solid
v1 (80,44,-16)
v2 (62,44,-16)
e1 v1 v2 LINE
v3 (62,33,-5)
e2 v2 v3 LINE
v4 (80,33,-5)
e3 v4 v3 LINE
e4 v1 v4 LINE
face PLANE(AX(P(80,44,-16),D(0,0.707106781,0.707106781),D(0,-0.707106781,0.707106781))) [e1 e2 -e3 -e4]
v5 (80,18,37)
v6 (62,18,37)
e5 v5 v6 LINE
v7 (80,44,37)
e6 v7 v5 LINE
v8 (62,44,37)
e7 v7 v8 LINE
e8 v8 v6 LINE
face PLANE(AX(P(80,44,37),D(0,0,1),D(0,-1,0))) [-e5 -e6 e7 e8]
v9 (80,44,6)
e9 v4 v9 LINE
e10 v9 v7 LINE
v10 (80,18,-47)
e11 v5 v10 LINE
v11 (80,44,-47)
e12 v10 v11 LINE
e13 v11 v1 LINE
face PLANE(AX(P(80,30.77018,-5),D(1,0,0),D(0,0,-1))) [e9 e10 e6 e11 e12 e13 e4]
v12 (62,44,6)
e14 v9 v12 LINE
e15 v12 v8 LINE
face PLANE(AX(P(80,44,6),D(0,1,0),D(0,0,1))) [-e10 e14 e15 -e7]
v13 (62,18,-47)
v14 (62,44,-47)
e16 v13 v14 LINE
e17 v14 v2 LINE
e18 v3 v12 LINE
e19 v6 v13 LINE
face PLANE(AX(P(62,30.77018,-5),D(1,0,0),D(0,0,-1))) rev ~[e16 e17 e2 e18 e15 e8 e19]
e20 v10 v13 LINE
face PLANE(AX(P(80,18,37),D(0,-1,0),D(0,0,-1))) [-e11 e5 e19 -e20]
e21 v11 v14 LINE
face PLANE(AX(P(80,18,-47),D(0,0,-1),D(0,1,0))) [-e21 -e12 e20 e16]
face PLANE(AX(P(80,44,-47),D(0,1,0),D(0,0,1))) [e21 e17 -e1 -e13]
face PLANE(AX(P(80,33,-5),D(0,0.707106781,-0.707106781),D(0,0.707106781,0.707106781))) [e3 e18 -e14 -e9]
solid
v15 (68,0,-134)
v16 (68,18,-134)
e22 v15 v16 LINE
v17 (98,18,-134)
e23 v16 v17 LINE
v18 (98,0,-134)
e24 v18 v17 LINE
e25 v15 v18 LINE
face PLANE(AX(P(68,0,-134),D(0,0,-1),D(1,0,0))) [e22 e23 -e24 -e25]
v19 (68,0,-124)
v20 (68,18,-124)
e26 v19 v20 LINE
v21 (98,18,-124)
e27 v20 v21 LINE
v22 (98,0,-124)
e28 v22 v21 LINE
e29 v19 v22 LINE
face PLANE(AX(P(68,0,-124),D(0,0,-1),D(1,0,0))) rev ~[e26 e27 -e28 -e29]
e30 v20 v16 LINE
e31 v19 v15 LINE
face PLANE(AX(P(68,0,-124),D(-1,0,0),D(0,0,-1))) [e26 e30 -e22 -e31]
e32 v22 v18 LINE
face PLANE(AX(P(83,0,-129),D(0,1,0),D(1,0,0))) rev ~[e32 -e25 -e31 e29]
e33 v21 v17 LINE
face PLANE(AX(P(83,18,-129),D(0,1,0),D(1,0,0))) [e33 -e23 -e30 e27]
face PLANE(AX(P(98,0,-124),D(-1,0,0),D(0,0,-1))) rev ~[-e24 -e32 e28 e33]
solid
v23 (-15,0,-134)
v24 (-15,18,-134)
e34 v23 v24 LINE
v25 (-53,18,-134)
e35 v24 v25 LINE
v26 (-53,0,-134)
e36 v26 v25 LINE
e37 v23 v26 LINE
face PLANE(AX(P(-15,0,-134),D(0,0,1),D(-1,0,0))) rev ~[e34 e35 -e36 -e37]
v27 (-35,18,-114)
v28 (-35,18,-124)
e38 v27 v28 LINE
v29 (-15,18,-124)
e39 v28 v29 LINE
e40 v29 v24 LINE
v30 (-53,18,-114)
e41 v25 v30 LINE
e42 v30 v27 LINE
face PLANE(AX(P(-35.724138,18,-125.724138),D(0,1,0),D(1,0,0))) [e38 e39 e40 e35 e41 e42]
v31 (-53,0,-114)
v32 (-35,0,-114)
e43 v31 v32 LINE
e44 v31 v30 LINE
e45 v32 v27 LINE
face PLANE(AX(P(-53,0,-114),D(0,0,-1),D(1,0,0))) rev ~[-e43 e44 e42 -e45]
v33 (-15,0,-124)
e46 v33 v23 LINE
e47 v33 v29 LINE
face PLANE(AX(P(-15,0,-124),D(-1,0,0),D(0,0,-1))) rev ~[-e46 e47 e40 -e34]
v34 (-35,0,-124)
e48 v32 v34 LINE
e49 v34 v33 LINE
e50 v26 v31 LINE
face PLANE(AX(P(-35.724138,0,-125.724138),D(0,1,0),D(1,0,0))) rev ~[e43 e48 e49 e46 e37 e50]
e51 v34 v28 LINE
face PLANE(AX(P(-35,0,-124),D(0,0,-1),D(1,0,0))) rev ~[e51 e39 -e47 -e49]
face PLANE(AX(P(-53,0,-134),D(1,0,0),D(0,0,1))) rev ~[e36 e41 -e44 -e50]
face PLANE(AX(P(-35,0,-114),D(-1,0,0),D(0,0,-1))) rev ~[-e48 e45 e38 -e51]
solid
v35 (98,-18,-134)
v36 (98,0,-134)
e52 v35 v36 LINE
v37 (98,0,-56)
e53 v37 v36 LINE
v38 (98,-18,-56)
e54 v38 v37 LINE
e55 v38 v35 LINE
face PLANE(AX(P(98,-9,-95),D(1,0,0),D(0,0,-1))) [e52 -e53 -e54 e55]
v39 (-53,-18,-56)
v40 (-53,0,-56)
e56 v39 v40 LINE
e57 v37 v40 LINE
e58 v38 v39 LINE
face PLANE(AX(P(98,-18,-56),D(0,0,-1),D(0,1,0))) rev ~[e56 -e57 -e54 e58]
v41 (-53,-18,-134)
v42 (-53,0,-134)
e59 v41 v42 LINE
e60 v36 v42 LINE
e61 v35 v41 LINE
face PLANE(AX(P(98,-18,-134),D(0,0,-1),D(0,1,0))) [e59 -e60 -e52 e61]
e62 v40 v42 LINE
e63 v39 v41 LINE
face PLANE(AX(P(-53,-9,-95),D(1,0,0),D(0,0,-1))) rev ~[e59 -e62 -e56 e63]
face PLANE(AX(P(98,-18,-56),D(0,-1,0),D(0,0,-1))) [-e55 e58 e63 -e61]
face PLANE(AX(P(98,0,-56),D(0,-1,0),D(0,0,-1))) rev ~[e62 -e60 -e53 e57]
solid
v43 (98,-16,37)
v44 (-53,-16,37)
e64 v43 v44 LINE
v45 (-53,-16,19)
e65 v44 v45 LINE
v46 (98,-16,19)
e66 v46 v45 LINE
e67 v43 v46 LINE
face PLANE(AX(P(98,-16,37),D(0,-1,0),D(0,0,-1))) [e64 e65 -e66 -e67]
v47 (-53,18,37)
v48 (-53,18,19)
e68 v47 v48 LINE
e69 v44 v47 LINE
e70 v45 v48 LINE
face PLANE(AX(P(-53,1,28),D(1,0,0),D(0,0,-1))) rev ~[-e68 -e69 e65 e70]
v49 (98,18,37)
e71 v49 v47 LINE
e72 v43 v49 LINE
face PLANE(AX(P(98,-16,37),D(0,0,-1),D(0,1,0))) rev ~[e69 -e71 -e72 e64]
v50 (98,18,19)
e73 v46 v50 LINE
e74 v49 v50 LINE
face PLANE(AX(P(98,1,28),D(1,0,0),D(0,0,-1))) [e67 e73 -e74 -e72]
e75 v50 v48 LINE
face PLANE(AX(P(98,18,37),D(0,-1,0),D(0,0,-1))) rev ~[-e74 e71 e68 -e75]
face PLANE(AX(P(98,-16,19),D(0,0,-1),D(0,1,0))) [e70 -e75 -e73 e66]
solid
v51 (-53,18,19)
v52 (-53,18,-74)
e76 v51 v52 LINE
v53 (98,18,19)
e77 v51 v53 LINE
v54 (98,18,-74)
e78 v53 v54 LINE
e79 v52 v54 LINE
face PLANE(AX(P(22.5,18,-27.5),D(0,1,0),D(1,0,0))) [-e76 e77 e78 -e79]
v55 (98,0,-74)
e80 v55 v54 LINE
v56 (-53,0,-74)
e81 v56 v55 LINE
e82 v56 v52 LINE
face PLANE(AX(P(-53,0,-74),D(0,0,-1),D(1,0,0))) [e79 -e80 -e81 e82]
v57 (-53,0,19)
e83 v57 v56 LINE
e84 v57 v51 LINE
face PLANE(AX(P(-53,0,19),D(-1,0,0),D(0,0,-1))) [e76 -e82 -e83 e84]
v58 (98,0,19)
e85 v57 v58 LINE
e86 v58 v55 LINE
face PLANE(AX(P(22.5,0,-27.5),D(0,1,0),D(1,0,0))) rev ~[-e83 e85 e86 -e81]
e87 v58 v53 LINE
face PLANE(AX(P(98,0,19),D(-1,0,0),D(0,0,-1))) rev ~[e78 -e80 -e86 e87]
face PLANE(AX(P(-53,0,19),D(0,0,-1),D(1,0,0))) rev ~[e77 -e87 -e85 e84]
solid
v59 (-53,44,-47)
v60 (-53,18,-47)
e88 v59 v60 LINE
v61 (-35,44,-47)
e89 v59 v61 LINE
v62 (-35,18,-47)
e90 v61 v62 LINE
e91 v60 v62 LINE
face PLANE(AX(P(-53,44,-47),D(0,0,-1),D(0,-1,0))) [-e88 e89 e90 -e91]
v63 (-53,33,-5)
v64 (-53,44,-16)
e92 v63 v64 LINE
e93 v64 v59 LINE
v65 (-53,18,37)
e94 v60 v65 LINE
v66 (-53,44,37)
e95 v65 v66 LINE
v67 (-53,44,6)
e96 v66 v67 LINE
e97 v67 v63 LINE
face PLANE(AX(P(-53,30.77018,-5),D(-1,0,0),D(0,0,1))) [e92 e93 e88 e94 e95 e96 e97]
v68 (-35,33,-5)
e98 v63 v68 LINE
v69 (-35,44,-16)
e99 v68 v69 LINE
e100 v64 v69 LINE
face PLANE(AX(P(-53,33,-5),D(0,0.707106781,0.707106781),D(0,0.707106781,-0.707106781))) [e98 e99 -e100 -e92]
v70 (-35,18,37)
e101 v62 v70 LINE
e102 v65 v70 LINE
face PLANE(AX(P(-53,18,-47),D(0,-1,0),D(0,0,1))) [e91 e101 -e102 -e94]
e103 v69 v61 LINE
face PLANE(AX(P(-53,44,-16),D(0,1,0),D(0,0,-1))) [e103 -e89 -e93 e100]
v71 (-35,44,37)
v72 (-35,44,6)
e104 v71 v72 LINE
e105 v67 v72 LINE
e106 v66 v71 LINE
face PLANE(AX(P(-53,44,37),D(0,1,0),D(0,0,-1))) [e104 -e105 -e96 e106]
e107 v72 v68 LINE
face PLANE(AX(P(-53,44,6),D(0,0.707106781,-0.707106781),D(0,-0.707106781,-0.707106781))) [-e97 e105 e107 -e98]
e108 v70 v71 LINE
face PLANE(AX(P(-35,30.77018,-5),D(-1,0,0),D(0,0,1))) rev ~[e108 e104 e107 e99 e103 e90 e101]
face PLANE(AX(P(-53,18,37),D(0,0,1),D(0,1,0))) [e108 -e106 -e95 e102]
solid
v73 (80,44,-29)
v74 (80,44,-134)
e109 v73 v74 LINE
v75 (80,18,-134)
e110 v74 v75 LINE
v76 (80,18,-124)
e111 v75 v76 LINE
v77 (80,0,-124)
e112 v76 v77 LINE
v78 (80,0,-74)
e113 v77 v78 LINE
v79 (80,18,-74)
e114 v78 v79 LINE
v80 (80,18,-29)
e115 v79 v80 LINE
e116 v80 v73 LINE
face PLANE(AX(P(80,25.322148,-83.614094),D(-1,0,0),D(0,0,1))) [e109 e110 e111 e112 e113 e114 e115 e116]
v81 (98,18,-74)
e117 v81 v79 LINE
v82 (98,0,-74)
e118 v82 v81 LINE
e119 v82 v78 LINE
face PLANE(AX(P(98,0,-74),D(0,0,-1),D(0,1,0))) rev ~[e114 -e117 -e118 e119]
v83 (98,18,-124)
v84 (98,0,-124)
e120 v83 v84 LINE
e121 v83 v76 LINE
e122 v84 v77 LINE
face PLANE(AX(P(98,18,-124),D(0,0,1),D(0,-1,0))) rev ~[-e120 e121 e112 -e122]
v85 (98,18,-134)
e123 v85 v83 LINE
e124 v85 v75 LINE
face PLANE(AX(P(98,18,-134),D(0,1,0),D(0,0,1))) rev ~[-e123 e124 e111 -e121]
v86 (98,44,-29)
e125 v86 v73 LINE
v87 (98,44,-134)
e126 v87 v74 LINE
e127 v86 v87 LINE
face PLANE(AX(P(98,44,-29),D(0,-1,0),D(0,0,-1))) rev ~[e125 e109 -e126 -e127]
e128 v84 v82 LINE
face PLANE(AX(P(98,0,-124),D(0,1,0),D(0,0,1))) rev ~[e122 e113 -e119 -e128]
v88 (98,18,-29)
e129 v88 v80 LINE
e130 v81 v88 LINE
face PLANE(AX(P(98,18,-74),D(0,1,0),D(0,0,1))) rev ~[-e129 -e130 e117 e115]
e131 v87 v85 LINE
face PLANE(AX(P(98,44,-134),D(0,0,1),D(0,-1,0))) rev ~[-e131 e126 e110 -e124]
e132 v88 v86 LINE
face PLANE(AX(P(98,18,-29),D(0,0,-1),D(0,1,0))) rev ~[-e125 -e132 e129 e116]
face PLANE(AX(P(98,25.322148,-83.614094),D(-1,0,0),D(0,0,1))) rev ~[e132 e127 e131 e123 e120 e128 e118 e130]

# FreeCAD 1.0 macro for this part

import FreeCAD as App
import Part
import Sketcher

V = App.Vector
Q = App.Units.Quantity


def add_polygon(sketch, points):
    """Adds a closed chain of lines whose ends are joined by coincident constraints."""
    first, n = sketch.GeometryCount, len(points)
    for a, b in zip(points, points[1:] + points[:1]):
        sketch.addGeometry(Part.LineSegment(App.Vector(*a, 0), App.Vector(*b, 0)), False)
    for i in range(n):
        sketch.addConstraint(Sketcher.Constraint("Coincident", first + i, 2, first + (i + 1) % n, 1))

doc = App.newDocument("Part")
body = doc.addObject("PartDesign::Body", "Body")

# Sketch on XZ plane
sketch1 = body.newObject("Sketcher::SketchObject", "Sketch")
sketch1.AttachmentSupport = (doc.getObject("XZ_Plane"), [""])
sketch1.MapMode = "FlatFace"
add_polygon(sketch1, [(-53, -74), (-53, 19), (98, 19), (98, -74)])  # lines 0-3
sketch1.addConstraint([
    Sketcher.Constraint("Vertical", 0),
    Sketcher.Constraint("Horizontal", 1),
    Sketcher.Constraint("Vertical", 2),
    Sketcher.Constraint("Horizontal", 3),
    Sketcher.Constraint("DistanceX", 1, 1, 1, 2, Q("151 mm")),
    Sketcher.Constraint("DistanceY", 0, 1, 0, 2, Q("93 mm")),
    Sketcher.Constraint("DistanceX", 0, 2, -1, 1, Q("53 mm")),
    Sketcher.Constraint("DistanceY", -1, 1, 0, 2, Q("19 mm")),
])
pad1 = body.newObject("PartDesign::Pad", "Pad")
pad1.Profile = sketch1
pad1.Length = 18
pad1.Reversed = True
body2 = doc.addObject("PartDesign::Body", "Body001")

# Sketch on YZ plane
sketch2 = body2.newObject("Sketcher::SketchObject", "Sketch001")
sketch2.AttachmentSupport = (doc.getObject("YZ_Plane001"), [""])
sketch2.MapMode = "FlatFace"
sketch2.AttachmentOffset = App.Placement(V(0, 0, 80), App.Rotation())
add_polygon(sketch2, [(18, 37), (18, -47), (44, -47), (44, -16), (33, -5), (44, 6), (44, 37)])  # lines 0-6
sketch2.addConstraint([
    Sketcher.Constraint("Vertical", 0),
    Sketcher.Constraint("Horizontal", 1),
    Sketcher.Constraint("Vertical", 2),
    Sketcher.Constraint("Vertical", 5),
    Sketcher.Constraint("Horizontal", 6),
    Sketcher.Constraint("Perpendicular", 3, 4),
    Sketcher.Constraint("Vertical", 2, 2, 4, 2),
    Sketcher.Constraint("Equal", 2, 5),
    Sketcher.Constraint("Equal", 3, 4),
    Sketcher.Constraint("DistanceX", 1, 1, 1, 2, Q("26 mm")),
    Sketcher.Constraint("DistanceY", 0, 2, 0, 1, Q("84 mm")),
    Sketcher.Constraint("DistanceY", 2, 1, 2, 2, Q("31 mm")),
    Sketcher.Constraint("DistanceX", -1, 1, 0, 2, Q("18 mm")),
    Sketcher.Constraint("DistanceY", 0, 2, -1, 1, Q("47 mm")),
])
pad2 = body2.newObject("PartDesign::Pad", "Pad001")
pad2.Profile = sketch2
pad2.Length = 18
pad2.Reversed = True
body3 = doc.addObject("PartDesign::Body", "Body002")

# Sketch on YZ plane
sketch3 = body3.newObject("Sketcher::SketchObject", "Sketch002")
sketch3.AttachmentSupport = (doc.getObject("YZ_Plane002"), [""])
sketch3.MapMode = "FlatFace"
sketch3.AttachmentOffset = App.Placement(V(0, 0, 98), App.Rotation())
add_polygon(sketch3, [(18, 37), (-16, 37), (-16, 19), (18, 19)])  # lines 0-3
sketch3.addConstraint([
    Sketcher.Constraint("Horizontal", 0),
    Sketcher.Constraint("Vertical", 1),
    Sketcher.Constraint("Horizontal", 2),
    Sketcher.Constraint("Vertical", 3),
    Sketcher.Constraint("DistanceX", 0, 2, 0, 1, Q("34 mm")),
    Sketcher.Constraint("DistanceY", 1, 2, 1, 1, Q("18 mm")),
    Sketcher.Constraint("DistanceX", 0, 2, -1, 1, Q("16 mm")),
    Sketcher.Constraint("DistanceY", -1, 1, 0, 2, Q("37 mm")),
])
pad3 = body3.newObject("PartDesign::Pad", "Pad002")
pad3.Profile = sketch3
pad3.Length = 151
pad3.Reversed = True
body4 = doc.addObject("PartDesign::Body", "Body003")

# Sketch on YZ plane
sketch4 = body4.newObject("Sketcher::SketchObject", "Sketch003")
sketch4.AttachmentSupport = (doc.getObject("YZ_Plane003"), [""])
sketch4.MapMode = "FlatFace"
sketch4.AttachmentOffset = App.Placement(V(0, 0, 98), App.Rotation())
add_polygon(sketch4, [(0, -56), (-18, -56), (-18, -134), (0, -134)])  # lines 0-3
sketch4.addConstraint([
    Sketcher.Constraint("Horizontal", 0),
    Sketcher.Constraint("Vertical", 1),
    Sketcher.Constraint("Horizontal", 2),
    Sketcher.Constraint("Vertical", 3),
    Sketcher.Constraint("PointOnObject", 2, 2, -2),
    Sketcher.Constraint("DistanceX", 0, 2, 0, 1, Q("18 mm")),
    Sketcher.Constraint("DistanceY", 1, 2, 1, 1, Q("78 mm")),
    Sketcher.Constraint("DistanceY", 0, 2, -1, 1, Q("56 mm")),
])
pad4 = body4.newObject("PartDesign::Pad", "Pad003")
pad4.Profile = sketch4
pad4.Length = 151
pad4.Reversed = True
body5 = doc.addObject("PartDesign::Body", "Body004")

# Sketch on YZ plane
sketch5 = body5.newObject("Sketcher::SketchObject", "Sketch004")
sketch5.AttachmentSupport = (doc.getObject("YZ_Plane004"), [""])
sketch5.MapMode = "FlatFace"
sketch5.AttachmentOffset = App.Placement(V(0, 0, -53), App.Rotation())
add_polygon(sketch5, [(18, 37), (44, 37), (44, 6), (33, -5), (44, -16), (44, -47), (18, -47)])  # lines 0-6
sketch5.addConstraint([
    Sketcher.Constraint("Horizontal", 0),
    Sketcher.Constraint("Vertical", 1),
    Sketcher.Constraint("Vertical", 4),
    Sketcher.Constraint("Horizontal", 5),
    Sketcher.Constraint("Vertical", 6),
    Sketcher.Constraint("Perpendicular", 2, 3),
    Sketcher.Constraint("Vertical", 1, 2, 3, 2),
    Sketcher.Constraint("Equal", 1, 4),
    Sketcher.Constraint("Equal", 2, 3),
    Sketcher.Constraint("DistanceX", 0, 1, 0, 2, Q("26 mm")),
    Sketcher.Constraint("DistanceY", 1, 2, 1, 1, Q("31 mm")),
    Sketcher.Constraint("DistanceY", 6, 1, 6, 2, Q("84 mm")),
    Sketcher.Constraint("DistanceX", -1, 1, 0, 2, Q("44 mm")),
    Sketcher.Constraint("DistanceY", -1, 1, 0, 2, Q("37 mm")),
])
pad5 = body5.newObject("PartDesign::Pad", "Pad004")
pad5.Profile = sketch5
pad5.Length = 18
body6 = doc.addObject("PartDesign::Body", "Body005")

# Sketch on YZ plane
sketch6 = body6.newObject("Sketcher::SketchObject", "Sketch005")
sketch6.AttachmentSupport = (doc.getObject("YZ_Plane005"), [""])
sketch6.MapMode = "FlatFace"
sketch6.AttachmentOffset = App.Placement(V(0, 0, 98), App.Rotation())
add_polygon(sketch6, [(0, -74), (0, -124), (18, -124), (18, -134), (44, -134), (44, -29), (18, -29), (18, -74)])  # lines 0-7
sketch6.addConstraint([
    Sketcher.Constraint("Vertical", 0),
    Sketcher.Constraint("Horizontal", 1),
    Sketcher.Constraint("Vertical", 2),
    Sketcher.Constraint("Horizontal", 3),
    Sketcher.Constraint("Vertical", 4),
    Sketcher.Constraint("Horizontal", 5),
    Sketcher.Constraint("Vertical", 6),
    Sketcher.Constraint("Horizontal", 7),
    Sketcher.Constraint("PointOnObject", 0, 2, -2),
    Sketcher.Constraint("Vertical", 2, 2, 5, 2),
    Sketcher.Constraint("DistanceX", 1, 1, 1, 2, Q("18 mm")),
    Sketcher.Constraint("DistanceX", 3, 1, 3, 2, Q("26 mm")),
    Sketcher.Constraint("DistanceY", 0, 2, 0, 1, Q("50 mm")),
    Sketcher.Constraint("DistanceY", 2, 2, 2, 1, Q("10 mm")),
    Sketcher.Constraint("DistanceY", 4, 1, 4, 2, Q("105 mm")),
    Sketcher.Constraint("DistanceY", 0, 2, -1, 1, Q("124 mm")),
])
pad6 = body6.newObject("PartDesign::Pad", "Pad005")
pad6.Profile = sketch6
pad6.Length = 18
pad6.Reversed = True
body7 = doc.addObject("PartDesign::Body", "Body006")

# Sketch on XZ plane
sketch7 = body7.newObject("Sketcher::SketchObject", "Sketch006")
sketch7.AttachmentSupport = (doc.getObject("XZ_Plane006"), [""])
sketch7.MapMode = "FlatFace"
add_polygon(sketch7, [(-35, -114), (-35, -124), (-15, -124), (-15, -134), (-53, -134), (-53, -114)])  # lines 0-5
sketch7.addConstraint([
    Sketcher.Constraint("Vertical", 0),
    Sketcher.Constraint("Horizontal", 1),
    Sketcher.Constraint("Vertical", 2),
    Sketcher.Constraint("Horizontal", 3),
    Sketcher.Constraint("Vertical", 4),
    Sketcher.Constraint("Horizontal", 5),
    Sketcher.Constraint("Equal", 0, 2),
    Sketcher.Constraint("Equal", 1, 4),
    Sketcher.Constraint("DistanceX", 1, 1, 1, 2, Q("20 mm")),
    Sketcher.Constraint("DistanceX", 3, 2, 3, 1, Q("38 mm")),
    Sketcher.Constraint("DistanceX", 0, 2, -1, 1, Q("35 mm")),
    Sketcher.Constraint("DistanceY", 0, 2, -1, 1, Q("124 mm")),
])
pad7 = body7.newObject("PartDesign::Pad", "Pad006")
pad7.Profile = sketch7
pad7.Length = 18
pad7.Reversed = True
body8 = doc.addObject("PartDesign::Body", "Body007")

# Sketch on XZ plane
sketch8 = body8.newObject("Sketcher::SketchObject", "Sketch007")
sketch8.AttachmentSupport = (doc.getObject("XZ_Plane007"), [""])
sketch8.MapMode = "FlatFace"
add_polygon(sketch8, [(68, -134), (68, -124), (98, -124), (98, -134)])  # lines 0-3
sketch8.addConstraint([
    Sketcher.Constraint("Vertical", 0),
    Sketcher.Constraint("Horizontal", 1),
    Sketcher.Constraint("Vertical", 2),
    Sketcher.Constraint("Horizontal", 3),
    Sketcher.Constraint("DistanceX", 1, 1, 1, 2, Q("30 mm")),
    Sketcher.Constraint("DistanceY", 0, 1, 0, 2, Q("10 mm")),
    Sketcher.Constraint("DistanceX", -1, 1, 0, 2, Q("68 mm")),
    Sketcher.Constraint("DistanceY", 0, 2, -1, 1, Q("124 mm")),
])
pad8 = body8.newObject("PartDesign::Pad", "Pad007")
pad8.Profile = sketch8
pad8.Length = 18
pad8.Reversed = True

doc.recompute()
